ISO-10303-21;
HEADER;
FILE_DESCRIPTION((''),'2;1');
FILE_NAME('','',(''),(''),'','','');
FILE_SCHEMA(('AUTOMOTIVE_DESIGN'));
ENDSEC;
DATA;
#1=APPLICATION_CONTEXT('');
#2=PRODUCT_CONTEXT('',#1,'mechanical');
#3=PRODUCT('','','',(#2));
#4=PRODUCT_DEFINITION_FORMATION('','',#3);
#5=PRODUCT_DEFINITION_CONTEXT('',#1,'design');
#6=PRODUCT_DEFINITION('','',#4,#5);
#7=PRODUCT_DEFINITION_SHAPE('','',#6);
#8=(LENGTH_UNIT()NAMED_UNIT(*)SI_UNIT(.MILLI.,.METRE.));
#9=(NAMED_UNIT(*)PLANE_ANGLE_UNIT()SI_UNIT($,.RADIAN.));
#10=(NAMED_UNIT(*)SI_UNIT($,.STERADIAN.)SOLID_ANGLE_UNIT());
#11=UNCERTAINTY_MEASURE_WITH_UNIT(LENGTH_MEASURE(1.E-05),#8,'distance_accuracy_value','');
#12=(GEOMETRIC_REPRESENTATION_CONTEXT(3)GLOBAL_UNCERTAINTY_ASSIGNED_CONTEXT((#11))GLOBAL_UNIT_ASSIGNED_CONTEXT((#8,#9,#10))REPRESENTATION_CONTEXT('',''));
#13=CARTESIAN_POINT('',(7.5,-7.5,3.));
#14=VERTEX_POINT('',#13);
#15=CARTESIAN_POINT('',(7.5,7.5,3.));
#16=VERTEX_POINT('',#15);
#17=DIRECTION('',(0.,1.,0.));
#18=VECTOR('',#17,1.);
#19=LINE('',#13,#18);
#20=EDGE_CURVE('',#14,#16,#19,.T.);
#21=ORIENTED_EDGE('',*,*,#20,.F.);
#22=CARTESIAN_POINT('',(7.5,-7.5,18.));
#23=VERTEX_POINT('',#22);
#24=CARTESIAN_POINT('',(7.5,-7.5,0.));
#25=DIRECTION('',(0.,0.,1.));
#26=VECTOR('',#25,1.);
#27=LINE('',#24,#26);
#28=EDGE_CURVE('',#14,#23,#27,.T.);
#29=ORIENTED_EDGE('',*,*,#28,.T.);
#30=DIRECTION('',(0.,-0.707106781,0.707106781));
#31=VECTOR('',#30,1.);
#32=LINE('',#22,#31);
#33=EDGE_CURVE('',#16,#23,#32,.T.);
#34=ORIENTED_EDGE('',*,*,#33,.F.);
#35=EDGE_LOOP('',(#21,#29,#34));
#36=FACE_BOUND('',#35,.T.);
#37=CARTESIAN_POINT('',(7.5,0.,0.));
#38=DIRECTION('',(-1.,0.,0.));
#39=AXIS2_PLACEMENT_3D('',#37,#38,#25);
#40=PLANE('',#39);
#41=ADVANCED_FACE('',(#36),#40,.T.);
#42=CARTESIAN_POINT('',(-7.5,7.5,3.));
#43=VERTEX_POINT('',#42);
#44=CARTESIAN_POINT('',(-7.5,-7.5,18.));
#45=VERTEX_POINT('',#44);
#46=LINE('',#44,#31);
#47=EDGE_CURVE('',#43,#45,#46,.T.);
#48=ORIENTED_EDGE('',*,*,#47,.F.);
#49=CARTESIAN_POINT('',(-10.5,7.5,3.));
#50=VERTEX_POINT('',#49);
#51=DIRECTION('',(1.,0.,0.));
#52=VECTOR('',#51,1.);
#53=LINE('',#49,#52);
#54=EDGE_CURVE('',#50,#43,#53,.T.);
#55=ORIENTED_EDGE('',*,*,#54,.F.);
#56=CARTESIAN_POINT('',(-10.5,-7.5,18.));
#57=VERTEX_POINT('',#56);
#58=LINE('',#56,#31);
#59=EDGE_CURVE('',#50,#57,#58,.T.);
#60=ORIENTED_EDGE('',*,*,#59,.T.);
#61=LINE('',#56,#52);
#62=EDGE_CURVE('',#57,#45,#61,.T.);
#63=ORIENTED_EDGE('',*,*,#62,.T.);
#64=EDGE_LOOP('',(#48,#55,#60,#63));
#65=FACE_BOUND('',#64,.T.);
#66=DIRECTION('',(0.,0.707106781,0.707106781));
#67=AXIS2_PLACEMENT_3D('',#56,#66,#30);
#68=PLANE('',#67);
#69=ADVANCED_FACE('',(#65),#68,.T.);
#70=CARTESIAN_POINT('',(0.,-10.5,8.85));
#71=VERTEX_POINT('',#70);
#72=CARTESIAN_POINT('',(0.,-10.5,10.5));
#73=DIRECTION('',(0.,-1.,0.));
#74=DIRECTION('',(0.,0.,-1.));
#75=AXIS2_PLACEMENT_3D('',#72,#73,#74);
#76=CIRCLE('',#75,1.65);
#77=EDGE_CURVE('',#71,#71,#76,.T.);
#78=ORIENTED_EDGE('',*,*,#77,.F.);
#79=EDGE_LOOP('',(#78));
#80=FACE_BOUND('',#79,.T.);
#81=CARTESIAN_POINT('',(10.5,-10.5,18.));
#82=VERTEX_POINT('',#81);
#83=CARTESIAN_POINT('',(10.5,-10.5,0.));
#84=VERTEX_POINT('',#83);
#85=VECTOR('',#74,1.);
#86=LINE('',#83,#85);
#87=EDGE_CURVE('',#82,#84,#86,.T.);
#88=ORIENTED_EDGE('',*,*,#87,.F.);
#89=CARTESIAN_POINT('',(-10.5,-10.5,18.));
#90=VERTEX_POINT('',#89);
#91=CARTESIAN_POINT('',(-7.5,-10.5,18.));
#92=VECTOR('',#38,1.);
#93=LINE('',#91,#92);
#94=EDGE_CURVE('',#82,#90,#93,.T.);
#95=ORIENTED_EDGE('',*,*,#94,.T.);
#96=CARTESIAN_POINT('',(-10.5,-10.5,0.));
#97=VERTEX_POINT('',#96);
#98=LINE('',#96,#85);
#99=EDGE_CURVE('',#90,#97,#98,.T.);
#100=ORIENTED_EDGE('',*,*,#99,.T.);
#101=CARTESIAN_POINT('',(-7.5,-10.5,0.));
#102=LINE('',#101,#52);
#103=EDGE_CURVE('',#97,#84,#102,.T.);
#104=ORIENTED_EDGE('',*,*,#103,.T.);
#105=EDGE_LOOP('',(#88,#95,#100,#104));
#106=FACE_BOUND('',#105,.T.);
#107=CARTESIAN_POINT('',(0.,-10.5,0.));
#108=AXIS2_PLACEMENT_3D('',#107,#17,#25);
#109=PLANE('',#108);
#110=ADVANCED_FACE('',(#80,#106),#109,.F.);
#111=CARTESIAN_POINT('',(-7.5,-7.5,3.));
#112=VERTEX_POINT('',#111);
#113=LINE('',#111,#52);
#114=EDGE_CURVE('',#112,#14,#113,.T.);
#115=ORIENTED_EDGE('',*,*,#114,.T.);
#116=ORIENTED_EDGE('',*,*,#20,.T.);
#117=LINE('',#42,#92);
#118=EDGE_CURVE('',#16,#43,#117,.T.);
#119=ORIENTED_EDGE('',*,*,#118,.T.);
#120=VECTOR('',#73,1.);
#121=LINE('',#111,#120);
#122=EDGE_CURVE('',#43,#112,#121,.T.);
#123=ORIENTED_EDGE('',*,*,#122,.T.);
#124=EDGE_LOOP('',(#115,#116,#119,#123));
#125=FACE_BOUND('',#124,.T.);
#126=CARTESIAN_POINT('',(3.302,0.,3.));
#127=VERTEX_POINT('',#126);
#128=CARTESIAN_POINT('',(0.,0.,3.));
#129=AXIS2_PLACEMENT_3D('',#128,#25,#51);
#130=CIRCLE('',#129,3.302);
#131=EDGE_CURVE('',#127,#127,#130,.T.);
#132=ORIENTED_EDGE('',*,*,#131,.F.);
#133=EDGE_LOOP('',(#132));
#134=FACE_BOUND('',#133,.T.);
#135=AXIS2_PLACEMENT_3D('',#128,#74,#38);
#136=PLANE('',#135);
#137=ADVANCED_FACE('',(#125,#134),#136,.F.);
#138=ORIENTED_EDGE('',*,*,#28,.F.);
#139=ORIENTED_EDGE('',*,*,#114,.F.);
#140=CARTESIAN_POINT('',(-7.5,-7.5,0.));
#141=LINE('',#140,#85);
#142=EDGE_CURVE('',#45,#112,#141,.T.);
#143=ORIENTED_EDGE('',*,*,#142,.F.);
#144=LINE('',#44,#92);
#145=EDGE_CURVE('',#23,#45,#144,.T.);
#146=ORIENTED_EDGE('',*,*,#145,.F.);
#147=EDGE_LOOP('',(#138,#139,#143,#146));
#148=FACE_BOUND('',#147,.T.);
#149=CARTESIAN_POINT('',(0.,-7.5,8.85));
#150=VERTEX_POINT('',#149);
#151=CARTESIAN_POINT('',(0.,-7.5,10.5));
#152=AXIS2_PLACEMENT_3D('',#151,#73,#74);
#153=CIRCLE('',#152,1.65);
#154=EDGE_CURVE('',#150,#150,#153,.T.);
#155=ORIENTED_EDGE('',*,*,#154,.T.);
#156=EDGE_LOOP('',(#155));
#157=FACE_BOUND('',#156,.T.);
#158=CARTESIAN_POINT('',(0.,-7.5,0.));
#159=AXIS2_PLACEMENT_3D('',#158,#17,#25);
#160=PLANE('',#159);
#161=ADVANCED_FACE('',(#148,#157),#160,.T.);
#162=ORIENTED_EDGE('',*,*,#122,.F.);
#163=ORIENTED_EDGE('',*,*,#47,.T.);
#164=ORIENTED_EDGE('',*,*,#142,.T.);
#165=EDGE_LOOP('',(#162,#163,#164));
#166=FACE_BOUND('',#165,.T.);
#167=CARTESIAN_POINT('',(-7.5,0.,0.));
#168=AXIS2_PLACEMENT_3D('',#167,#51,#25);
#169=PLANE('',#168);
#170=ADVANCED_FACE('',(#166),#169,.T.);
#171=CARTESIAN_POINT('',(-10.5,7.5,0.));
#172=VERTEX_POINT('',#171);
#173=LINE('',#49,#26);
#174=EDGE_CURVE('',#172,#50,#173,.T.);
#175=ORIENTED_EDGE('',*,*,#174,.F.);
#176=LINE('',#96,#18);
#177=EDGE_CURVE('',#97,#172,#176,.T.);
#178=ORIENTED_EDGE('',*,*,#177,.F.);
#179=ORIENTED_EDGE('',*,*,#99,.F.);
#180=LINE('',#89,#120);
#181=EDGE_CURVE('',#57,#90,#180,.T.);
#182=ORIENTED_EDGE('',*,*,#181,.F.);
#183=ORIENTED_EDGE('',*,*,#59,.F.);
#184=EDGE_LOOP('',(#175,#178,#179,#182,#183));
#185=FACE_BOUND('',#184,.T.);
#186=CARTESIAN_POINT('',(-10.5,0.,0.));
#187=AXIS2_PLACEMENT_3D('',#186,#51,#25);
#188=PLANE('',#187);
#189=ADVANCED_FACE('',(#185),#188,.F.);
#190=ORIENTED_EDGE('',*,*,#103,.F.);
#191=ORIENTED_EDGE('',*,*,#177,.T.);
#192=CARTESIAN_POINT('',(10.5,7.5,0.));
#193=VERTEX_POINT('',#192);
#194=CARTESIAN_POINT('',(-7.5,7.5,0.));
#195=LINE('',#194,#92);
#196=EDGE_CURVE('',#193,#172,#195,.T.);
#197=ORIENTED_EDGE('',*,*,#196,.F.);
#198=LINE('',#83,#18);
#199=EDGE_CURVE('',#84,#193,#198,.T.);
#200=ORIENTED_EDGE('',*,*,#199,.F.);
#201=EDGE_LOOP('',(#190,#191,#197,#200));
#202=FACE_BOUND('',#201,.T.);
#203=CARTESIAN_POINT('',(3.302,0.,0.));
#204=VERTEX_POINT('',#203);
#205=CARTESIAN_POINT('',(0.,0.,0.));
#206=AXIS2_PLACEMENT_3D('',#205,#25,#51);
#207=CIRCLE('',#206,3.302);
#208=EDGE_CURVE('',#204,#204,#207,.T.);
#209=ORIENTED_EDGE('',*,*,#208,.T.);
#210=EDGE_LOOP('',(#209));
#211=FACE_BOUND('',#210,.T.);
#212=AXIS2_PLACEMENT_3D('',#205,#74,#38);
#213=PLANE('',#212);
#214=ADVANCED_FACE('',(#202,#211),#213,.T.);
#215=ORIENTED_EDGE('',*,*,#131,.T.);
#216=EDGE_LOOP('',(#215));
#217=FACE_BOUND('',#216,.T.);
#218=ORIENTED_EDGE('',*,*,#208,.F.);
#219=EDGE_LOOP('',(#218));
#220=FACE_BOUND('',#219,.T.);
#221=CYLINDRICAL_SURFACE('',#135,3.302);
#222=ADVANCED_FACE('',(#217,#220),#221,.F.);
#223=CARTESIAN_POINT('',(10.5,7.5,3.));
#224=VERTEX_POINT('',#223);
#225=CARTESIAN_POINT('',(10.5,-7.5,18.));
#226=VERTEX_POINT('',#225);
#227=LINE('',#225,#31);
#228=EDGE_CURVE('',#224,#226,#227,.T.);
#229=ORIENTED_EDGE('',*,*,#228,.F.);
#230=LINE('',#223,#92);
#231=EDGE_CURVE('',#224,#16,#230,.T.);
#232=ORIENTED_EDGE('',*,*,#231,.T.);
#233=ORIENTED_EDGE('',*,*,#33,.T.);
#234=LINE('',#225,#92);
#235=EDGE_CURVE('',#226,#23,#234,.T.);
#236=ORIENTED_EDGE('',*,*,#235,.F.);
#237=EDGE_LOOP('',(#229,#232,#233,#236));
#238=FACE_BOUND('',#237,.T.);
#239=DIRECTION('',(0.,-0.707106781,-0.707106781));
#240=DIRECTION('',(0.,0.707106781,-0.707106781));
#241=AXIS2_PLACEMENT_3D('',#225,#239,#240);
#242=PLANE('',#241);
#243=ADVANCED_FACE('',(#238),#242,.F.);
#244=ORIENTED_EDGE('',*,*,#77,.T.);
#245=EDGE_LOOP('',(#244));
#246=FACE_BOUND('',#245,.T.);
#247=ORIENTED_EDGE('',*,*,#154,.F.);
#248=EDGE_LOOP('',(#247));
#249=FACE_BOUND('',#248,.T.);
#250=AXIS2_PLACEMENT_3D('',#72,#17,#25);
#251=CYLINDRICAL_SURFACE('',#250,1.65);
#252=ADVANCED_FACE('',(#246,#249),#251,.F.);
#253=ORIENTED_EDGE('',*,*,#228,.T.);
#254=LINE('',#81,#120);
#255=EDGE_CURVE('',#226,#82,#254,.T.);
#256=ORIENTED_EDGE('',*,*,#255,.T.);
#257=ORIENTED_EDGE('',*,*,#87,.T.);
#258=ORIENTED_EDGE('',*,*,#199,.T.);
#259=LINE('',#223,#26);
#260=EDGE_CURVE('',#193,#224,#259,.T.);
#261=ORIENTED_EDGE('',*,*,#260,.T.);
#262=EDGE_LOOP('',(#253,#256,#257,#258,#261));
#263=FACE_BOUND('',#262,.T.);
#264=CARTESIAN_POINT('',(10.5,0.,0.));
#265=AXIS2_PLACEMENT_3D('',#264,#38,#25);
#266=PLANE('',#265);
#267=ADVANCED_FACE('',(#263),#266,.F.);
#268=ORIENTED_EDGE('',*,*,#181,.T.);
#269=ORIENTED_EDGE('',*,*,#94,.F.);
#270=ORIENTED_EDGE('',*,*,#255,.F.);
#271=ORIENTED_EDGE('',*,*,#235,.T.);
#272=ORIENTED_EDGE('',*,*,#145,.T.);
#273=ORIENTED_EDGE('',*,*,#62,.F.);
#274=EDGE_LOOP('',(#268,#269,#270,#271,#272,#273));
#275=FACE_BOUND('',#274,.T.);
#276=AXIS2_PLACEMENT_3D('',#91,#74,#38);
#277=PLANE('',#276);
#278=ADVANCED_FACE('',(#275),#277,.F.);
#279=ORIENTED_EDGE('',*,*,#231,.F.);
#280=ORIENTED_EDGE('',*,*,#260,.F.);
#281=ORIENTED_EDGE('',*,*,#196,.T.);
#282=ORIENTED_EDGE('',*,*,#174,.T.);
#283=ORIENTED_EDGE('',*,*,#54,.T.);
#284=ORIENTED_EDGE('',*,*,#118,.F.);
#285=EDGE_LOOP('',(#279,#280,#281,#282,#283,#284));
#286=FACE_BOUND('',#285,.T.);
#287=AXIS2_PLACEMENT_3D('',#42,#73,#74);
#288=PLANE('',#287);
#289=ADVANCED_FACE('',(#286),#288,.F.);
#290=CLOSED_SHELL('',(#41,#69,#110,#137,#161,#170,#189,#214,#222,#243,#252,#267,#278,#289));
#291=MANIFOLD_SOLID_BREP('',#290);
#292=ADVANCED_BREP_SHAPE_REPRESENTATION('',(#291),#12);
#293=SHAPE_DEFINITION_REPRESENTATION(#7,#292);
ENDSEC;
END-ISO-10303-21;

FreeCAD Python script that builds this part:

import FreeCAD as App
import Part
import Sketcher

V = App.Vector
Q = App.Units.Quantity

doc = App.newDocument("Part")
body = doc.addObject("PartDesign::Body", "Body")

# Sketch on XY plane
sketch1 = body.newObject("Sketcher::SketchObject", "Sketch")
sketch1.AttachmentSupport = (doc.getObject("XY_Plane"), [""])
sketch1.MapMode = "FlatFace"
sketch1.addGeometry(Part.LineSegment(V(-7.5, 7.5, 0), V(-7.5, -7.5, 0)), False)
sketch1.addGeometry(Part.LineSegment(V(-7.5, -7.5, 0), V(7.5, -7.5, 0)), False)
sketch1.addGeometry(Part.LineSegment(V(7.5, -7.5, 0), V(7.5, 7.5, 0)), False)
sketch1.addGeometry(Part.LineSegment(V(7.5, 7.5, 0), V(-7.5, 7.5, 0)), False)
sketch1.addGeometry(Part.Circle(V(0, 0, 0), V(0, 0, 1), 3.3), False)
sketch1.addConstraint(Sketcher.Constraint("Coincident", 0, 2, 1, 1))
sketch1.addConstraint(Sketcher.Constraint("Coincident", 1, 2, 2, 1))
sketch1.addConstraint(Sketcher.Constraint("Coincident", 2, 2, 3, 1))
sketch1.addConstraint(Sketcher.Constraint("Coincident", 3, 2, 0, 1))
sketch1.addConstraint(Sketcher.Constraint("Vertical", 0))
sketch1.addConstraint(Sketcher.Constraint("Horizontal", 1))
sketch1.addConstraint(Sketcher.Constraint("Vertical", 2))
sketch1.addConstraint(Sketcher.Constraint("Horizontal", 3))
sketch1.addConstraint(Sketcher.Constraint("Coincident", 4, 3, -1, 1))
sketch1.addConstraint(Sketcher.Constraint("Symmetric", 0, 2, 2, 2, -1, 1))
sketch1.addConstraint(Sketcher.Constraint("Equal", 3, 0))
sketch1.addConstraint(Sketcher.Constraint("DistanceX", 1, 1, 1, 2, Q("15 mm")))
sketch1.addConstraint(Sketcher.Constraint("Diameter", 4, Q("6.604 mm")))
pad1 = body.newObject("PartDesign::Pad", "Pad")
pad1.Profile = sketch1
pad1.Length = 3

# Sketch on XZ plane
sketch2 = body.newObject("Sketcher::SketchObject", "Sketch001")
sketch2.AttachmentSupport = (doc.getObject("XZ_Plane"), [""])
sketch2.MapMode = "FlatFace"
sketch2.AttachmentOffset = App.Placement(V(0, 0, 7.5), App.Rotation())
sketch2.addGeometry(Part.LineSegment(V(-7.5, 18, 0), V(-7.5, 0, 0)), False)
sketch2.addGeometry(Part.LineSegment(V(-7.5, 0, 0), V(7.5, 0, 0)), False)
sketch2.addGeometry(Part.LineSegment(V(7.5, 0, 0), V(7.5, 18, 0)), False)
sketch2.addGeometry(Part.LineSegment(V(7.5, 18, 0), V(-7.5, 18, 0)), False)
sketch2.addGeometry(Part.Circle(V(0, 10.5, 0), V(0, 0, 1), 1.6), False)
sketch2.addConstraint(Sketcher.Constraint("Coincident", 0, 2, 1, 1))
sketch2.addConstraint(Sketcher.Constraint("Coincident", 1, 2, 2, 1))
sketch2.addConstraint(Sketcher.Constraint("Coincident", 2, 2, 3, 1))
sketch2.addConstraint(Sketcher.Constraint("Coincident", 3, 2, 0, 1))
sketch2.addConstraint(Sketcher.Constraint("Vertical", 0))
sketch2.addConstraint(Sketcher.Constraint("Horizontal", 1))
sketch2.addConstraint(Sketcher.Constraint("Vertical", 2))
sketch2.addConstraint(Sketcher.Constraint("Horizontal", 3))
sketch2.addConstraint(Sketcher.Constraint("Symmetric", 0, 2, 1, 2, -1, 1))
sketch2.addConstraint(Sketcher.Constraint("PointOnObject", 4, 3, -2))
sketch2.addConstraint(Sketcher.Constraint("Diameter", 4, Q("3.3 mm")))
sketch2.addConstraint(Sketcher.Constraint("DistanceX", 1, 1, 1, 2, Q("15 mm")))
sketch2.addConstraint(Sketcher.Constraint("DistanceY", 0, 2, 0, 1, Q("18 mm")))
sketch2.addConstraint(Sketcher.Constraint("DistanceY", -1, 1, 4, 3, Q("10.5 mm")))
pad2 = body.newObject("PartDesign::Pad", "Pad001")
pad2.Profile = sketch2
pad2.Length = 3

# Sketch on YZ plane
sketch3 = body.newObject("Sketcher::SketchObject", "Sketch002")
sketch3.AttachmentSupport = (doc.getObject("YZ_Plane"), [""])
sketch3.MapMode = "FlatFace"
sketch3.AttachmentOffset = App.Placement(V(0, 0, 7.5), App.Rotation())
sketch3.addGeometry(Part.LineSegment(V(-7.5, 18, 0), V(-10.5, 18, 0)), False)
sketch3.addGeometry(Part.LineSegment(V(-10.5, 18, 0), V(-10.5, 0, 0)), False)
sketch3.addGeometry(Part.LineSegment(V(-10.5, 0, 0), V(7.5, 0, 0)), False)
sketch3.addGeometry(Part.LineSegment(V(7.5, 0, 0), V(7.5, 3, 0)), False)
sketch3.addGeometry(Part.LineSegment(V(7.5, 3, 0), V(-7.5, 18, 0)), False)
sketch3.addConstraint(Sketcher.Constraint("Coincident", 0, 2, 1, 1))
sketch3.addConstraint(Sketcher.Constraint("Coincident", 1, 2, 2, 1))
sketch3.addConstraint(Sketcher.Constraint("Coincident", 2, 2, 3, 1))
sketch3.addConstraint(Sketcher.Constraint("Coincident", 3, 2, 4, 1))
sketch3.addConstraint(Sketcher.Constraint("Coincident", 4, 2, 0, 1))
sketch3.addConstraint(Sketcher.Constraint("Horizontal", 0))
sketch3.addConstraint(Sketcher.Constraint("Vertical", 1))
sketch3.addConstraint(Sketcher.Constraint("Horizontal", 2))
sketch3.addConstraint(Sketcher.Constraint("Vertical", 3))
sketch3.addConstraint(Sketcher.Constraint("PointOnObject", 1, 2, -1))
sketch3.addConstraint(Sketcher.Constraint("Equal", 2, 1))
sketch3.addConstraint(Sketcher.Constraint("Equal", 0, 3))
sketch3.addConstraint(Sketcher.Constraint("DistanceX", 0, 2, 0, 1, Q("3 mm")))
sketch3.addConstraint(Sketcher.Constraint("DistanceX", 2, 1, 2, 2, Q("18 mm")))
sketch3.addConstraint(Sketcher.Constraint("DistanceX", 0, 2, -1, 1, Q("10.5 mm")))
pad3 = body.newObject("PartDesign::Pad", "Pad002")
pad3.Profile = sketch3
pad3.Length = 3
doc.recompute()

mirrored = body.newObject("PartDesign::Mirrored", "Mirrored")
mirrored.Originals = [pad3]
mirrored.MirrorPlane = (doc.getObject("YZ_Plane"), [""])
body.Tip = mirrored

doc.recompute()
